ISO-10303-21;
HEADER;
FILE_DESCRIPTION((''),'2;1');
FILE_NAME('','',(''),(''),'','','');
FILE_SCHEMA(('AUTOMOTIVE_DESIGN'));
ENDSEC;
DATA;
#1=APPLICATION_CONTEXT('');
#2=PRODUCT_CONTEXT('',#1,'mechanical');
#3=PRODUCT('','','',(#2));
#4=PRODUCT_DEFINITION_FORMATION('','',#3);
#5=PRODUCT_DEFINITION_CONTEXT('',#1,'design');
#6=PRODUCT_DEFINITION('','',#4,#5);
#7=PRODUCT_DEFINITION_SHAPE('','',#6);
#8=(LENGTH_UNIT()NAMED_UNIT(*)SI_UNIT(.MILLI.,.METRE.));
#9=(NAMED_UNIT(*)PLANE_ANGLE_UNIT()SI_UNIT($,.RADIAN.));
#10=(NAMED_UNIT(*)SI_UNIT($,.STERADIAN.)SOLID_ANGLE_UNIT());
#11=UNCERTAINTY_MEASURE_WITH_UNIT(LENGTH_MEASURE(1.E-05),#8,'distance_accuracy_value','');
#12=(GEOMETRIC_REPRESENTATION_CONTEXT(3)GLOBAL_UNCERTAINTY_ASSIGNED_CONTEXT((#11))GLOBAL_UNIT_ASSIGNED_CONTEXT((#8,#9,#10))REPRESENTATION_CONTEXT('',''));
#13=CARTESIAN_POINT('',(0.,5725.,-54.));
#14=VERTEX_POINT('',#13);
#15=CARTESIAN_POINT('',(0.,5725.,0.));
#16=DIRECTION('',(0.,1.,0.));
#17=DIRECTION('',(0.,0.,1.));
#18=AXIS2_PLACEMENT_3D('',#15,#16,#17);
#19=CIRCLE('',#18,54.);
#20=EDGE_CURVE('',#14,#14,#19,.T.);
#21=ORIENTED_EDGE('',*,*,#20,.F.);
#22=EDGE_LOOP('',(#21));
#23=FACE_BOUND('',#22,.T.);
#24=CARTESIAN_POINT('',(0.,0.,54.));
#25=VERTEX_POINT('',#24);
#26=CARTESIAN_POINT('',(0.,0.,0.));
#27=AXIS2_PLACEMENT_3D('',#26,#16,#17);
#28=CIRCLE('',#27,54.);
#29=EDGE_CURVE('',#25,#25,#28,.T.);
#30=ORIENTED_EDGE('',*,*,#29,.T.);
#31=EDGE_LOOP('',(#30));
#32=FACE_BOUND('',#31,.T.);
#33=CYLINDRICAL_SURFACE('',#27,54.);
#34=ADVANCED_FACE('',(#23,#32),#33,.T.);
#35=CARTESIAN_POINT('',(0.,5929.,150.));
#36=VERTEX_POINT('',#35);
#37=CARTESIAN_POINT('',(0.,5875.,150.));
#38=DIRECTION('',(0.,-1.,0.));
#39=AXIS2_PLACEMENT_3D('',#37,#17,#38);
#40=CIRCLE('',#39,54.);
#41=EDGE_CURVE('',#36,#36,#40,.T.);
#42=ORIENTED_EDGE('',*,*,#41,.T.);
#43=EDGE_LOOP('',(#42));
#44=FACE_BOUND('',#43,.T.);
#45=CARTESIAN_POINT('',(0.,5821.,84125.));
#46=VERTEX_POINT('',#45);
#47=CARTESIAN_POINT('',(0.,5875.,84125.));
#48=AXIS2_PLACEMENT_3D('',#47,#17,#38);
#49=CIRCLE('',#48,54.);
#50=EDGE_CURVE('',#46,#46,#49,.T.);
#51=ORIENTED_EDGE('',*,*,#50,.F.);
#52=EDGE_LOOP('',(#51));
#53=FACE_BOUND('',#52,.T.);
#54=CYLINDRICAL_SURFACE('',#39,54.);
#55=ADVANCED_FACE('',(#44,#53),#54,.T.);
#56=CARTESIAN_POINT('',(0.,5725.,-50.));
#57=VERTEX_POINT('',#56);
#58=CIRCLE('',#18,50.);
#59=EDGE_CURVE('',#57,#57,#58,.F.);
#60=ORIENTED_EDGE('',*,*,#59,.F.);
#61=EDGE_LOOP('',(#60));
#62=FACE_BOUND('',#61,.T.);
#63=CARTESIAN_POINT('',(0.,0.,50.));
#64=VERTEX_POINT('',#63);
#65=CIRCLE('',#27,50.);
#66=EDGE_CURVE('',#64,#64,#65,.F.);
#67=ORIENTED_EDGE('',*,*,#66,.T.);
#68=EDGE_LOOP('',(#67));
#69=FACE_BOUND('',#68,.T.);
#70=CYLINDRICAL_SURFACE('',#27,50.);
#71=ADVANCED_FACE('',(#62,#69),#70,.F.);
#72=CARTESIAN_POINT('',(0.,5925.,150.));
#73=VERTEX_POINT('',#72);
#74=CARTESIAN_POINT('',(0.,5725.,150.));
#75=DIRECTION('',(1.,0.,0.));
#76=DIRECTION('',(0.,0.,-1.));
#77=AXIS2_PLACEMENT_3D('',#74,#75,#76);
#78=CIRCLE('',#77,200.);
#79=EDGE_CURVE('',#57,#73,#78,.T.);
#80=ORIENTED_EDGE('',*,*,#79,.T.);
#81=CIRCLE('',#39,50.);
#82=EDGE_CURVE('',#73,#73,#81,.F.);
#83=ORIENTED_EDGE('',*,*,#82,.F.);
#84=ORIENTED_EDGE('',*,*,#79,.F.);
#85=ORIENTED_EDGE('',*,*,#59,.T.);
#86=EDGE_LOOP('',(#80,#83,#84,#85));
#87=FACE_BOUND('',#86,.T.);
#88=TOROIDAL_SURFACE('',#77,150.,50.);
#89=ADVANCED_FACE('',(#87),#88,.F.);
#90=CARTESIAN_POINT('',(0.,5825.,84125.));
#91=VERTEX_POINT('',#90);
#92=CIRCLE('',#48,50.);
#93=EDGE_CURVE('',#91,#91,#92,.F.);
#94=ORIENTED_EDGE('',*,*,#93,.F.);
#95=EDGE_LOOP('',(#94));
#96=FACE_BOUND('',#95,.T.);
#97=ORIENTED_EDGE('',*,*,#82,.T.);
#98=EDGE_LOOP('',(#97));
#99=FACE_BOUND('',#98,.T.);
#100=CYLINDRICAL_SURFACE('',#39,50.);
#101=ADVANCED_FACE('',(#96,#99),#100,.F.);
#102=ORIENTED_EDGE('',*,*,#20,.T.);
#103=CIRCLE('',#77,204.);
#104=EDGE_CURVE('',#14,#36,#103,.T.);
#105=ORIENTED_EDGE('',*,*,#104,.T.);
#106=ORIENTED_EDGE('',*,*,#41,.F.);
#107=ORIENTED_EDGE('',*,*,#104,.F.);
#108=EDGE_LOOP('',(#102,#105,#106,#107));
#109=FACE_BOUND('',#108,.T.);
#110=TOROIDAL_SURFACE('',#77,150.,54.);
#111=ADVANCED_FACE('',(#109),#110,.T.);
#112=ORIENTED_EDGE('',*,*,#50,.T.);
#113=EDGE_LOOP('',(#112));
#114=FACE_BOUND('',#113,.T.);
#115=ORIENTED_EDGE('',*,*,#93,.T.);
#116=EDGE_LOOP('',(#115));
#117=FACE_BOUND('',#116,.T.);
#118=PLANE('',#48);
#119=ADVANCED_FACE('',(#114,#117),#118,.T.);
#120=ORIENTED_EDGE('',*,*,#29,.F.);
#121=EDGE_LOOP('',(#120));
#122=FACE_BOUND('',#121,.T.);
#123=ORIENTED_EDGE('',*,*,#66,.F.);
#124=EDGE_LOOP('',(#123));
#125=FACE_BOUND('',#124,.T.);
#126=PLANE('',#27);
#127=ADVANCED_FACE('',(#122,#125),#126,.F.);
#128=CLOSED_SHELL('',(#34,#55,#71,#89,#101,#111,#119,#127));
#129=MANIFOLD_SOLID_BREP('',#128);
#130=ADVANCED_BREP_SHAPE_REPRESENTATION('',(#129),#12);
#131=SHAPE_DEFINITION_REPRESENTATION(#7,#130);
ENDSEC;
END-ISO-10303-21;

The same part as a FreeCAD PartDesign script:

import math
import FreeCAD as App
import Part
import Sketcher

V = App.Vector

doc = App.newDocument("Part")
params = doc.addObject("Spreadsheet::Sheet", "Params")
for row, (alias, value) in enumerate([
    ("sketch1_diameter", "108 mm"),
    ("sketch1_diameter2", "100 mm"),
    ("sketch2_radius", "150 mm"),
    ("sketch2_width", "5725 mm"),
    ("sketch2_height", "83975 mm"),
], start=1):
    params.set(f"A{row}", alias)
    params.set(f"B{row}", "=" + value)
    params.setAlias(f"B{row}", alias)

body = doc.addObject("PartDesign::Body", "Body")

# Sketch on XZ plane
sketch1 = doc.addObject("Sketcher::SketchObject", "Sketch")
body.addObject(sketch1)
sketch1.AttachmentSupport = (doc.XZ_Plane, [""])
sketch1.MapMode = "FlatFace"
sketch1.addGeometry(Part.Circle(V(0, 0, 0), V(0, 0, 1), 54), False)
sketch1.addGeometry(Part.Circle(V(0, 0, 0), V(0, 0, 1), 50), False)
sketch1.addConstraint(Sketcher.Constraint("Coincident", 0, 3, -1, 1))
sketch1.addConstraint(Sketcher.Constraint("Coincident", 1, 3, -1, 1))
sketch1.addConstraint(Sketcher.Constraint("Diameter", 0, 108.0))
sketch1.addConstraint(Sketcher.Constraint("Diameter", 1, 100.0))
sketch1.setExpression("Constraints[2]", "Params.sketch1_diameter")
sketch1.setExpression("Constraints[3]", "Params.sketch1_diameter2")

# Sketch on YZ plane
sketch2 = doc.addObject("Sketcher::SketchObject", "Sketch001")
body.addObject(sketch2)
sketch2.AttachmentSupport = (doc.YZ_Plane, [""])
sketch2.MapMode = "FlatFace"
sketch2.addGeometry(Part.LineSegment(V(0, 0, 0), V(5725, 0, 0)), False)
sketch2.addGeometry(Part.ArcOfCircle(Part.Circle(V(5725, 150, 0), V(0, 0, 1), 150), math.radians(-90), math.radians(0)), False)
sketch2.addGeometry(Part.LineSegment(V(5875, 150, 0), V(5875, 84125, 0)), False)
sketch2.addConstraint(Sketcher.Constraint("Tangent", 0, 2, 1, 1))
sketch2.addConstraint(Sketcher.Constraint("Tangent", 1, 2, 2, 1))
sketch2.addConstraint(Sketcher.Constraint("Horizontal", 0))
sketch2.addConstraint(Sketcher.Constraint("Vertical", 2))
sketch2.addConstraint(Sketcher.Constraint("Coincident", 0, 1, -1, 1))
sketch2.addConstraint(Sketcher.Constraint("Radius", 1, 150.0))
sketch2.addConstraint(Sketcher.Constraint("DistanceX", 0, 1, 0, 2, 5725.0))
sketch2.addConstraint(Sketcher.Constraint("DistanceY", 2, 1, 2, 2, 83975.0))
sketch2.setExpression("Constraints[5]", "Params.sketch2_radius")
sketch2.setExpression("Constraints[6]", "Params.sketch2_width")
sketch2.setExpression("Constraints[7]", "Params.sketch2_height")
doc.recompute()

additivepipe = doc.addObject("PartDesign::AdditivePipe", "AdditivePipe")
body.addObject(additivepipe)
additivepipe.Profile = sketch1
additivepipe.Spine = (sketch2, ["Edge1", "Edge2", "Edge3"])

doc.recompute()
